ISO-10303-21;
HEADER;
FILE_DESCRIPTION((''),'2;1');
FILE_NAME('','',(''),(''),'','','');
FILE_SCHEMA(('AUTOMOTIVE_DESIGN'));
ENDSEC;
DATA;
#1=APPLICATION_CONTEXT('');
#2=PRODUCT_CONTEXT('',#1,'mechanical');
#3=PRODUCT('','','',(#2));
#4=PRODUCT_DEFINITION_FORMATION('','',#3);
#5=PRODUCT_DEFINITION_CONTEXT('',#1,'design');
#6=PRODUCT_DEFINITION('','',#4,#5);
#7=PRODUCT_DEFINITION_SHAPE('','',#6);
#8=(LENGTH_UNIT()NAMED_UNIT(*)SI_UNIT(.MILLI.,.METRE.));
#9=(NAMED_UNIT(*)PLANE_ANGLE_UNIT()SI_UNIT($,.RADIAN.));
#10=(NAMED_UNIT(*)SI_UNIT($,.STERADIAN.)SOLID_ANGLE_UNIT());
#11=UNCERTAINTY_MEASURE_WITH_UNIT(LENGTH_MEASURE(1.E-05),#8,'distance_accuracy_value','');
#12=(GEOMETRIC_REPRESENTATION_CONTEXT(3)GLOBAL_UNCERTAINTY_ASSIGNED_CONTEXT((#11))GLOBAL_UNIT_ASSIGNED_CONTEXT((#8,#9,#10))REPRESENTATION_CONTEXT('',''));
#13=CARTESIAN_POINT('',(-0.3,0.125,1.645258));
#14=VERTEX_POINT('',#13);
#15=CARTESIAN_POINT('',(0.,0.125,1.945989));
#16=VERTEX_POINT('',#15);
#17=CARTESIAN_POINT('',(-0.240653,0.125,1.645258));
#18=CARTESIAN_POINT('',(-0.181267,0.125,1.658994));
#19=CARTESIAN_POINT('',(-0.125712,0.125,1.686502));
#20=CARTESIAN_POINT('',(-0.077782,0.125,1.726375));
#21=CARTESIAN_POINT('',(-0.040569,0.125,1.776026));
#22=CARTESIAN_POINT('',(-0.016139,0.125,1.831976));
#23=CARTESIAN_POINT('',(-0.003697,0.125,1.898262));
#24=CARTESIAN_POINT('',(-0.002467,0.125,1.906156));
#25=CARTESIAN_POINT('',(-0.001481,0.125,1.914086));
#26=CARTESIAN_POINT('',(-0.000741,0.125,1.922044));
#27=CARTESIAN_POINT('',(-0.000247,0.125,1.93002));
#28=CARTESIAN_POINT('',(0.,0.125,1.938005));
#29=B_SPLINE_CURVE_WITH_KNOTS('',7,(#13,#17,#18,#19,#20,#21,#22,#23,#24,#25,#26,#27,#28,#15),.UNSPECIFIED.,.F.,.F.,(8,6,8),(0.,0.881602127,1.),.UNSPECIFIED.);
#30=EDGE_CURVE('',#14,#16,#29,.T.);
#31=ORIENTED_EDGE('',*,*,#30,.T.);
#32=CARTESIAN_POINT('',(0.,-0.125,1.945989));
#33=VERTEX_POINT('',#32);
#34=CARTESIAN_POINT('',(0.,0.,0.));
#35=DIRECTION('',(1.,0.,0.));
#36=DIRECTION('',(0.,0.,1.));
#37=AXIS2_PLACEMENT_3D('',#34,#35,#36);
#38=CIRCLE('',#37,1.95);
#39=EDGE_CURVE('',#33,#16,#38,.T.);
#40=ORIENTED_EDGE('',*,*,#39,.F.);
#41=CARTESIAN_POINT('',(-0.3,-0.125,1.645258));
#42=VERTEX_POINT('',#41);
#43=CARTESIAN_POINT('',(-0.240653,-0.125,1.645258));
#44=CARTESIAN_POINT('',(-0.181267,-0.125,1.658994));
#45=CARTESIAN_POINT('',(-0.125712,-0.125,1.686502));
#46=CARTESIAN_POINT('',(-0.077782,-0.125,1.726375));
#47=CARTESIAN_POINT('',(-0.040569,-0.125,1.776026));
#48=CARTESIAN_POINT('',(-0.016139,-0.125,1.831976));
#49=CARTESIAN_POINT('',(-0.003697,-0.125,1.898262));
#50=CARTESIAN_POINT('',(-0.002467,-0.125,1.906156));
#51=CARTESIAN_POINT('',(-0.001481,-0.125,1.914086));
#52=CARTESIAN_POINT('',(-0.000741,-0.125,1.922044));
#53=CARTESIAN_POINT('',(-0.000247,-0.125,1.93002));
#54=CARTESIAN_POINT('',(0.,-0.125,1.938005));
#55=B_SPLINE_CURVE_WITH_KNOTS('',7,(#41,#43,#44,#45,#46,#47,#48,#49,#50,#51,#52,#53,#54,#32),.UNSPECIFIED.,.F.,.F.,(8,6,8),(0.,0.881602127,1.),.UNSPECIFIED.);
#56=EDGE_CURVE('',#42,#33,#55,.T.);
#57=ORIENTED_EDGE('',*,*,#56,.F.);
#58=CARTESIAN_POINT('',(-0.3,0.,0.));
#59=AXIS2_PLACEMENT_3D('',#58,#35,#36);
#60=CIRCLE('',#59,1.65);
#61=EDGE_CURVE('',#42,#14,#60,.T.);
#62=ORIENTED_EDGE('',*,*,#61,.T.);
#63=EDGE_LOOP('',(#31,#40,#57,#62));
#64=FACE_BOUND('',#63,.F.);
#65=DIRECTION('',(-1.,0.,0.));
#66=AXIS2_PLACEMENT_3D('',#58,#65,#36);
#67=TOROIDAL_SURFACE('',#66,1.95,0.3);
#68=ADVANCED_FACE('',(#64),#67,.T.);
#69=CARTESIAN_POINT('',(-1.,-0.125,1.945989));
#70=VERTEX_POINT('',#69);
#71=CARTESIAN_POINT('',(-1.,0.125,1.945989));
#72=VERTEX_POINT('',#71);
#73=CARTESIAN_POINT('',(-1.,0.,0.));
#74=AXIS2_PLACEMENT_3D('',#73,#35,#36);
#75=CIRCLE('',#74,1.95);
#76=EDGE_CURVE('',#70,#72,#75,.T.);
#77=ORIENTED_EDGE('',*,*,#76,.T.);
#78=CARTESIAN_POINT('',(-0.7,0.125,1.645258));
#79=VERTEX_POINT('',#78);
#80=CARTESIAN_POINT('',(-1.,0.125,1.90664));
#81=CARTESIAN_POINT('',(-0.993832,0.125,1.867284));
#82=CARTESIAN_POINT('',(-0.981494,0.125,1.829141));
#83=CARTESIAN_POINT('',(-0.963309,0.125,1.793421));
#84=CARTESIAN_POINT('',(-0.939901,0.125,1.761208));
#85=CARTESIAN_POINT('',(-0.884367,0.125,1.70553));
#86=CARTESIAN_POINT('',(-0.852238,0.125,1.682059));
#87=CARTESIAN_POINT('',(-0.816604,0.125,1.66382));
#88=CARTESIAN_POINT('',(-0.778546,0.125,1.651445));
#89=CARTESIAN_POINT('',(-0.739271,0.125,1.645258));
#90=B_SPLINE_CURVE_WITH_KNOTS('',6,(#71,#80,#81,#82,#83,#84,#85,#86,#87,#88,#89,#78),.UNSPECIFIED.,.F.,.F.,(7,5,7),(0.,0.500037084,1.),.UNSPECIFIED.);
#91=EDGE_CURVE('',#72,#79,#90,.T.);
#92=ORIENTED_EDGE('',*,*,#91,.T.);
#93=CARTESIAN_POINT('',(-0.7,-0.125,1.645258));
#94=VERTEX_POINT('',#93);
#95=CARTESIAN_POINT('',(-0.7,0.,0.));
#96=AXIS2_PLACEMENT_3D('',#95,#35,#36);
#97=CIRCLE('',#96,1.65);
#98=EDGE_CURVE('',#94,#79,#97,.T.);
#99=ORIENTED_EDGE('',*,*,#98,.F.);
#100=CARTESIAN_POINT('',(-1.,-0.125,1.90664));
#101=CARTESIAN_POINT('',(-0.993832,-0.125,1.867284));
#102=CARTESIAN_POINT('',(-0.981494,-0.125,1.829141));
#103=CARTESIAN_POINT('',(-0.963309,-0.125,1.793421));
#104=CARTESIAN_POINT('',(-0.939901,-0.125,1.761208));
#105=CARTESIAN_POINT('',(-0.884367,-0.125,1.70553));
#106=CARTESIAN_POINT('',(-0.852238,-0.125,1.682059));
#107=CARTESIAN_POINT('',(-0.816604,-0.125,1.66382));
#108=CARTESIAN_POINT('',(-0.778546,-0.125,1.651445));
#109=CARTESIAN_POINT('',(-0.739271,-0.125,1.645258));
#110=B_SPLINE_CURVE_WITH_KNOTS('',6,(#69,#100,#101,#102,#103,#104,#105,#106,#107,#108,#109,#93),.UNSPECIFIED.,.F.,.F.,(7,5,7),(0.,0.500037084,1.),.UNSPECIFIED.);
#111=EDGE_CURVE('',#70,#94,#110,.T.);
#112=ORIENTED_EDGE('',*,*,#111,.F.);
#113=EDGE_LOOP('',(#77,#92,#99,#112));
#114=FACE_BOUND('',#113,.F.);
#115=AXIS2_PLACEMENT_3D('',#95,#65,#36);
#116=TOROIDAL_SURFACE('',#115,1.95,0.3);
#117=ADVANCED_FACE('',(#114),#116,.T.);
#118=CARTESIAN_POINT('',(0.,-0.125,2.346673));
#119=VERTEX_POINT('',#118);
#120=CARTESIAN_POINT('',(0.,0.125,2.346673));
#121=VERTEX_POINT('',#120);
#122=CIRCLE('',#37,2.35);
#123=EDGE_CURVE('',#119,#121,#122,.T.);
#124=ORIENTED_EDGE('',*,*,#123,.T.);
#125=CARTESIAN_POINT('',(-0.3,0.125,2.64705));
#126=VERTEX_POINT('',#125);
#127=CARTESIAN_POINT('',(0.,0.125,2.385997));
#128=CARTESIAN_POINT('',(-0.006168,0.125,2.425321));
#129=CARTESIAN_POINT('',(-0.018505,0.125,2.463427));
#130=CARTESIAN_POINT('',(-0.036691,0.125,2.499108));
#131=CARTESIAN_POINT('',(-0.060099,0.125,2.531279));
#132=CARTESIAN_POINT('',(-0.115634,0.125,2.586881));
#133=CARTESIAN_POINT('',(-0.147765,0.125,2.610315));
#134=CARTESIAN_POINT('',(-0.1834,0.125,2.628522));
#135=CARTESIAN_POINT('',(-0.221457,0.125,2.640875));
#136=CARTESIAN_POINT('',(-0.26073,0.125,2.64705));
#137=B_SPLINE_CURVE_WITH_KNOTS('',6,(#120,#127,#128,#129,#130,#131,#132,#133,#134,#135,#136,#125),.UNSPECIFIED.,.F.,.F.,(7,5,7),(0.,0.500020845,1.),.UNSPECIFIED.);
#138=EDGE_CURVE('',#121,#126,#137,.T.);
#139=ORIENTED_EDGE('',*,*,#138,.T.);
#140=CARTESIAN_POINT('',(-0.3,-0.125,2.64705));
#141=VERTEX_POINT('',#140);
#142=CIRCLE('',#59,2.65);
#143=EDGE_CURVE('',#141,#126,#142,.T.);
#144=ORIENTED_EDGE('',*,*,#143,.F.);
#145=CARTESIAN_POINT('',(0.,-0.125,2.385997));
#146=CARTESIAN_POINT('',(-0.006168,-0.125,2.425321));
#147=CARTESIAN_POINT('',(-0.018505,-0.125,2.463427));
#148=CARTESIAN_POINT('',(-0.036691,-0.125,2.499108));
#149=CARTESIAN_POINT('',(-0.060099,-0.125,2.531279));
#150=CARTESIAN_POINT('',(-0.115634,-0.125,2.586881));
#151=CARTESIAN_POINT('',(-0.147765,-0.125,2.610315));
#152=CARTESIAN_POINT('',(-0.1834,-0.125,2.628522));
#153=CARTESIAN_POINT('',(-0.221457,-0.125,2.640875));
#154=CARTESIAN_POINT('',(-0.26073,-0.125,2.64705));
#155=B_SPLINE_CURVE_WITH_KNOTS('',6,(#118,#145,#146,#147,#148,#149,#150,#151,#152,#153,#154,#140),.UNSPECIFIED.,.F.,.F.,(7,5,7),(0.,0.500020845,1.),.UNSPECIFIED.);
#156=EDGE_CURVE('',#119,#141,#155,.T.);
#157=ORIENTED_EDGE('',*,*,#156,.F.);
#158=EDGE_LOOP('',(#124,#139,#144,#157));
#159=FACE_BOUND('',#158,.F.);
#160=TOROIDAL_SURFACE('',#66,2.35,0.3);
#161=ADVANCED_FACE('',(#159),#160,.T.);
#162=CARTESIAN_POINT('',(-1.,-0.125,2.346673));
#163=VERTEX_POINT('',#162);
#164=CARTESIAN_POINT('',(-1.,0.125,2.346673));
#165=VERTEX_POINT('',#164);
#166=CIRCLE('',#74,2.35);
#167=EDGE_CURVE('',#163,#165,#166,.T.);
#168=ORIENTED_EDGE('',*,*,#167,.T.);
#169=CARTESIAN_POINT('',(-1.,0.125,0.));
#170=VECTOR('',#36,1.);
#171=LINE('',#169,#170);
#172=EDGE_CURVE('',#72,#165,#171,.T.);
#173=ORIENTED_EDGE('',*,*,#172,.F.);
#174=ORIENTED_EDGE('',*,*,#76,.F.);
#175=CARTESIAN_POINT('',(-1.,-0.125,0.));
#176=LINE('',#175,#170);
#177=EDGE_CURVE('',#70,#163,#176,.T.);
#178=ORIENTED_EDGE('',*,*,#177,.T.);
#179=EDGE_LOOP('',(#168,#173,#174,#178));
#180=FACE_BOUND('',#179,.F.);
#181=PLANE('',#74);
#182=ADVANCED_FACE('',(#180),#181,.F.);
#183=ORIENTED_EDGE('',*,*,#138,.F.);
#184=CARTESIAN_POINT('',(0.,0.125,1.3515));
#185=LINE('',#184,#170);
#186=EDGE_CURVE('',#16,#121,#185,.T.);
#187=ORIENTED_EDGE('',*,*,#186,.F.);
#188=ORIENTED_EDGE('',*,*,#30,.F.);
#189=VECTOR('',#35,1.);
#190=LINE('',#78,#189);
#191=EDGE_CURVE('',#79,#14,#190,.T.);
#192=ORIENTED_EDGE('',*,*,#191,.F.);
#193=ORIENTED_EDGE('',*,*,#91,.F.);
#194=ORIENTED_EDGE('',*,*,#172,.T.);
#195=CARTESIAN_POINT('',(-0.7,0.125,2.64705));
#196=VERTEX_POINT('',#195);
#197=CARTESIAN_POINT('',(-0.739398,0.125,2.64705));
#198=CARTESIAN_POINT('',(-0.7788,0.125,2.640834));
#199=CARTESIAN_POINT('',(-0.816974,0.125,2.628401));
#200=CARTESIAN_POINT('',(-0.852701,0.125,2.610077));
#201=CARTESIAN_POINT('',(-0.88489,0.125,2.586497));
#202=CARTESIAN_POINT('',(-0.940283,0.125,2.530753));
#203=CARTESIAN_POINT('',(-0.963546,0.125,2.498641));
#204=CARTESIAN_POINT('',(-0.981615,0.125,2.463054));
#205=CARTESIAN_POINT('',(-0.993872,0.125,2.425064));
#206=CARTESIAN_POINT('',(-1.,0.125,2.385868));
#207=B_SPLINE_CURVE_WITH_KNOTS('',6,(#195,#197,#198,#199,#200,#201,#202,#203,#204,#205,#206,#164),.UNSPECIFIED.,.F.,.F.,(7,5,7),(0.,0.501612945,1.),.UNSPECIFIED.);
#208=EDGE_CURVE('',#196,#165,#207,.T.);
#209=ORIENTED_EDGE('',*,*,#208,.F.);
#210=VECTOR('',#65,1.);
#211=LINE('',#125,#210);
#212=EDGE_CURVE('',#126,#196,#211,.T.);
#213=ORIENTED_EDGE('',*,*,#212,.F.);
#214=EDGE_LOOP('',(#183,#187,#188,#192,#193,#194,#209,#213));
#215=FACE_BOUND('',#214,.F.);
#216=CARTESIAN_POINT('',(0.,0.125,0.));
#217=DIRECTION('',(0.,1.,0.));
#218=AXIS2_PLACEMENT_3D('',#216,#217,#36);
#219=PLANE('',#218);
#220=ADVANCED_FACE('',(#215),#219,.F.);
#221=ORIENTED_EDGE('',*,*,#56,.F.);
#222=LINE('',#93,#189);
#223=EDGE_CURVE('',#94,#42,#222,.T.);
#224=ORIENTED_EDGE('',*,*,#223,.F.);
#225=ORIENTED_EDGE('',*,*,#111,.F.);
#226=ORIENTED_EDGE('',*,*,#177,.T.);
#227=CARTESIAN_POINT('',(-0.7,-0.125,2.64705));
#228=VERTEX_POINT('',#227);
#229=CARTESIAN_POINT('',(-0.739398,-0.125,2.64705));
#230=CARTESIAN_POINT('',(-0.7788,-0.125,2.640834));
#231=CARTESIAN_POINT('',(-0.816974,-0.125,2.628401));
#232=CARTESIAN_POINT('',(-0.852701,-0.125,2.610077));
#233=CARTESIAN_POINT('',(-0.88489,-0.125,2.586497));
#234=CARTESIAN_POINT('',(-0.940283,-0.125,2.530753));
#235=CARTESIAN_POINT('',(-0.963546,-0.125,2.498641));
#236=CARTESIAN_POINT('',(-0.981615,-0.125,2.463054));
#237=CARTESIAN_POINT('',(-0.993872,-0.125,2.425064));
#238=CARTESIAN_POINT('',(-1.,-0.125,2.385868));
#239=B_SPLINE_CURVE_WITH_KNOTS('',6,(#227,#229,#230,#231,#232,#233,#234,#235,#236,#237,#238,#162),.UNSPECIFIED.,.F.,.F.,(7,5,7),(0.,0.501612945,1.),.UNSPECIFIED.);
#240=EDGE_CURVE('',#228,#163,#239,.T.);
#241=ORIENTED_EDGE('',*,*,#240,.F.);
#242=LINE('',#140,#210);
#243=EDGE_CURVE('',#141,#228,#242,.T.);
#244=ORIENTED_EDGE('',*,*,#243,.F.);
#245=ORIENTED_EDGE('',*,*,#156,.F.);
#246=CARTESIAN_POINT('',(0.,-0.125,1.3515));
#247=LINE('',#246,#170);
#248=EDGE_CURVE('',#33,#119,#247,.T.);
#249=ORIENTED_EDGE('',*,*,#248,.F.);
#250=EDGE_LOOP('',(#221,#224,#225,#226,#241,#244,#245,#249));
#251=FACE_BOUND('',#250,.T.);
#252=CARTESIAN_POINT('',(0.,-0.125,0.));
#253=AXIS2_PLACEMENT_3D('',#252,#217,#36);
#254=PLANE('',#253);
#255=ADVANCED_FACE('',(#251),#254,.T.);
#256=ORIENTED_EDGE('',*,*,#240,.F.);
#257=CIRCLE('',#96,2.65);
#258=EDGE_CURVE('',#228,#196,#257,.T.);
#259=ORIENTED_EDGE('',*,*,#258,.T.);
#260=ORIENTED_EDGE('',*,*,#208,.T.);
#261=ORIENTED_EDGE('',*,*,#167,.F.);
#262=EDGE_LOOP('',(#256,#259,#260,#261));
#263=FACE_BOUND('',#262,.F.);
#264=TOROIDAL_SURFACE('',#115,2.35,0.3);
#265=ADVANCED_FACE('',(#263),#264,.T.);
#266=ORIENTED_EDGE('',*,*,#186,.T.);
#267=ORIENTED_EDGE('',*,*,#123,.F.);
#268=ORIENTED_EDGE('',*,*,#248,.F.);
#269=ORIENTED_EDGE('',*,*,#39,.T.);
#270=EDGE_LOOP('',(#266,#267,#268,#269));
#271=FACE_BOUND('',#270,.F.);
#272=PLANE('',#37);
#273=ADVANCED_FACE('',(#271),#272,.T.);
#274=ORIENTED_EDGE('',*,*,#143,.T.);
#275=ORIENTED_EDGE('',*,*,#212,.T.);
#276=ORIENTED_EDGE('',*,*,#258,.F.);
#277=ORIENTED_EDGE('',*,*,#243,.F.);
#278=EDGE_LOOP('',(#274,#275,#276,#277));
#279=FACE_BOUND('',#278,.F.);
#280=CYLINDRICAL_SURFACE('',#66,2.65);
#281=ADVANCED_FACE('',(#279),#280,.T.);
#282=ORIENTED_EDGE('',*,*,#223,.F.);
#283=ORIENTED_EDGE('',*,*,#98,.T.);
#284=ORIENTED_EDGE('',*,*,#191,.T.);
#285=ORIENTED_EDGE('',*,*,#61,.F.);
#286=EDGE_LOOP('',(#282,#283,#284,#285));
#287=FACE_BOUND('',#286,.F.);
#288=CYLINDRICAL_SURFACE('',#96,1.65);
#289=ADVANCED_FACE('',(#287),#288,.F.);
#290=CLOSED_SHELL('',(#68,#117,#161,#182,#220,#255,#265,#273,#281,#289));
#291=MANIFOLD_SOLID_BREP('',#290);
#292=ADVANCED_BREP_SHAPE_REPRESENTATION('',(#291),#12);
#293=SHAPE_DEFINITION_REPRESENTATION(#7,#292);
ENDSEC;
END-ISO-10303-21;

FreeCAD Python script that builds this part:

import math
import FreeCAD as App
import Part
import Sketcher

V = App.Vector
Q = App.Units.Quantity

doc = App.newDocument("Part")
params = doc.addObject("Spreadsheet::Sheet", "Params")
for row, (alias, value) in enumerate([
    ("sketch1_radius", "0.3 mm"),
    ("sketch1_width", "0.4 mm"),
    ("revolution_angle", "360 deg"),
    ("sketch2_width", "0.25 mm"),
], start=1):
    params.set(f"A{row}", alias)
    params.set(f"B{row}", "=" + value)
    params.setAlias(f"B{row}", alias)

body = doc.addObject("PartDesign::Body", "Body")

sketch1 = body.newObject("Sketcher::SketchObject", "Sketch")
sketch1.AttachmentSupport = (doc.getObject("XY_Plane"), [""])
sketch1.MapMode = "FlatFace"
sketch1.addGeometry([
    Part.LineSegment(V(0, 1.95, 0), V(0, 2.35, 0)),
    Part.ArcOfCircle(Part.Circle(V(-0.3, 2.35, 0), V(0, 0, 1), 0.3), math.radians(0), math.radians(90)),
    Part.LineSegment(V(-0.3, 2.65, 0), V(-0.7, 2.65, 0)),
    Part.ArcOfCircle(Part.Circle(V(-0.7, 2.35, 0), V(0, 0, 1), 0.3), math.radians(90), math.radians(180)),
    Part.LineSegment(V(-1, 2.35, 0), V(-1, 1.95, 0)),
    Part.ArcOfCircle(Part.Circle(V(-0.7, 1.95, 0), V(0, 0, 1), 0.3), math.radians(-180), math.radians(-90)),
    Part.LineSegment(V(-0.7, 1.65, 0), V(-0.3, 1.65, 0)),
    Part.ArcOfCircle(Part.Circle(V(-0.3, 1.95, 0), V(0, 0, 1), 0.3), math.radians(-90), math.radians(0)),
], False)
sketch1.addConstraint([
    Sketcher.Constraint("Tangent", 0, 2, 1, 1),
    Sketcher.Constraint("Tangent", 1, 2, 2, 1),
    Sketcher.Constraint("Tangent", 2, 2, 3, 1),
    Sketcher.Constraint("Tangent", 3, 2, 4, 1),
    Sketcher.Constraint("Tangent", 4, 2, 5, 1),
    Sketcher.Constraint("Tangent", 5, 2, 6, 1),
    Sketcher.Constraint("Tangent", 6, 2, 7, 1),
    Sketcher.Constraint("Tangent", 7, 2, 0, 1),
    Sketcher.Constraint("Vertical", 0),
    Sketcher.Constraint("Horizontal", 2),
    Sketcher.Constraint("Vertical", 4),
    Sketcher.Constraint("Horizontal", 6),
    Sketcher.Constraint("Equal", 1, 3),
    Sketcher.Constraint("Equal", 3, 5),
    Sketcher.Constraint("Equal", 5, 7),
    Sketcher.Constraint("PointOnObject", 0, 2, -2),
    Sketcher.Constraint("Equal", 6, 0),
    Sketcher.Constraint("Radius", 1, Q("0.3 mm")),
    Sketcher.Constraint("DistanceX", 2, 2, 2, 1, Q("0.4 mm")),
    Sketcher.Constraint("DistanceY", -1, 1, 1, 3, Q("2.35 mm")),
])
sketch1.setExpression("Constraints[17]", "Params.sketch1_radius")
sketch1.setExpression("Constraints[18]", "Params.sketch1_width")
revolution = body.newObject("PartDesign::Revolution", "Revolution")
revolution.Profile = sketch1
revolution.ReferenceAxis = (sketch1, ["H_Axis"])
revolution.setExpression("Angle", "Params.revolution_angle")

sketch2 = body.newObject("Sketcher::SketchObject", "Sketch001")
sketch2.AttachmentSupport = (doc.getObject("YZ_Plane"), [""])
sketch2.MapMode = "FlatFace"
sketch2.addGeometry([
    Part.LineSegment(V(0.12, 2.7, 0), V(0.12, 0, 0)),
    Part.LineSegment(V(0.12, 0, 0), V(-0.12, 0, 0)),
    Part.LineSegment(V(-0.12, 0, 0), V(-0.12, 2.7, 0)),
    Part.LineSegment(V(-0.12, 2.7, 0), V(0.12, 2.7, 0)),
], False)
sketch2.addConstraint([
    Sketcher.Constraint("Coincident", 0, 2, 1, 1),
    Sketcher.Constraint("Coincident", 1, 2, 2, 1),
    Sketcher.Constraint("Coincident", 2, 2, 3, 1),
    Sketcher.Constraint("Coincident", 3, 2, 0, 1),
    Sketcher.Constraint("Vertical", 0),
    Sketcher.Constraint("Horizontal", 1),
    Sketcher.Constraint("Vertical", 2),
    Sketcher.Constraint("Horizontal", 3),
    Sketcher.Constraint("Symmetric", 0, 2, 1, 2, -1, 1),
    Sketcher.Constraint("DistanceX", 1, 2, 1, 1, Q("0.25 mm")),
    Sketcher.Constraint("DistanceY", 0, 2, 0, 1, Q("2.703 mm")),
])
sketch2.setExpression("Constraints[9]", "Params.sketch2_width")
pocket1 = body.newObject("PartDesign::Pocket", "Pocket")
pocket1.Profile = sketch2
pocket1.Type = "ThroughAll"

doc.recompute()
